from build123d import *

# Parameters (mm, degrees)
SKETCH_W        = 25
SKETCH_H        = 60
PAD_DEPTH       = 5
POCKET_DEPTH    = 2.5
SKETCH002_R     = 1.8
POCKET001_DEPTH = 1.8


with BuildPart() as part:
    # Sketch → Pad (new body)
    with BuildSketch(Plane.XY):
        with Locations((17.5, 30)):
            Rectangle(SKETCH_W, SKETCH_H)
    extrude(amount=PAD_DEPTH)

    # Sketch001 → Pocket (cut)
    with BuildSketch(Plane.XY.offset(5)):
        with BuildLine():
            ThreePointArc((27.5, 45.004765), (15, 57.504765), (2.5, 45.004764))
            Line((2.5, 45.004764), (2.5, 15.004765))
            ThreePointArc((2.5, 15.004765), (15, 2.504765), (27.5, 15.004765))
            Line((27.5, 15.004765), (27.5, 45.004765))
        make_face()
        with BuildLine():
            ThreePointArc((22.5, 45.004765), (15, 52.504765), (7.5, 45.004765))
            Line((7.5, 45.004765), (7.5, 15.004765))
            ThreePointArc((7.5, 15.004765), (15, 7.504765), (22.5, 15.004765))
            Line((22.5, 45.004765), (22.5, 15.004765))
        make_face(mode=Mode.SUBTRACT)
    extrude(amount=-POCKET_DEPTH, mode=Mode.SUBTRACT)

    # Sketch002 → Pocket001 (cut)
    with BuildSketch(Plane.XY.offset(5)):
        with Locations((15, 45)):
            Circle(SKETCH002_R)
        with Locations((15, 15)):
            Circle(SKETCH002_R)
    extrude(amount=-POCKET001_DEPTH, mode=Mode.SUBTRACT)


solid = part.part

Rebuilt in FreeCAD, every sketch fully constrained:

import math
import FreeCAD as App
import Part
import Sketcher
from FreeCAD import Vector

doc = App.newDocument("Part")
params = doc.addObject("Spreadsheet::Sheet", "Params")
for row, (alias, value) in enumerate([
    ("sketch1_width", "25 mm"),
    ("sketch1_height", "60 mm"),
    ("pad1_length", "5 mm"),
    ("sketch2_radius", "12.5 mm"),
    ("sketch2_radius2", "7.5 mm"),
    ("sketch2_height", "29.999999 mm"),
    ("pocket1_length", "2.5 mm"),
    ("sketch3_diameter", "3.6 mm"),
    ("pocket2_length", "1.8 mm"),
], start=1):
    params.set(f"A{row}", alias)
    params.set(f"B{row}", "=" + value)
    params.setAlias(f"B{row}", alias)

body = doc.addObject("PartDesign::Body", "Body")

sketch1 = body.newObject("Sketcher::SketchObject", "Sketch")
sketch1.AttachmentSupport = (doc.getObject("XY_Plane"), [""])
sketch1.MapMode = "FlatFace"
sketch1.addGeometry(Part.LineSegment(Vector(5, 60, 0), Vector(5, 0, 0)), False)
sketch1.addGeometry(Part.LineSegment(Vector(5, 0, 0), Vector(30, 0, 0)), False)
sketch1.addGeometry(Part.LineSegment(Vector(30, 0, 0), Vector(30, 60, 0)), False)
sketch1.addGeometry(Part.LineSegment(Vector(30, 60, 0), Vector(5, 60, 0)), False)
sketch1.addConstraint(Sketcher.Constraint("Coincident", 0, 2, 1, 1))
sketch1.addConstraint(Sketcher.Constraint("Coincident", 1, 2, 2, 1))
sketch1.addConstraint(Sketcher.Constraint("Coincident", 2, 2, 3, 1))
sketch1.addConstraint(Sketcher.Constraint("Coincident", 3, 2, 0, 1))
sketch1.addConstraint(Sketcher.Constraint("Vertical", 0))
sketch1.addConstraint(Sketcher.Constraint("Horizontal", 1))
sketch1.addConstraint(Sketcher.Constraint("Vertical", 2))
sketch1.addConstraint(Sketcher.Constraint("Horizontal", 3))
sketch1.addConstraint(Sketcher.Constraint("PointOnObject", 0, 2, -1))
sketch1.addConstraint(Sketcher.Constraint("DistanceX", 1, 1, 1, 2, 25.0))
sketch1.addConstraint(Sketcher.Constraint("DistanceY", 0, 2, 0, 1, 60.0))
sketch1.addConstraint(Sketcher.Constraint("DistanceX", -1, 1, 0, 2, 5.0))
sketch1.setExpression("Constraints[9]", "Params.sketch1_width")
sketch1.setExpression("Constraints[10]", "Params.sketch1_height")
pad1 = body.newObject("PartDesign::Pad", "Pad")
pad1.Profile = sketch1
pad1.setExpression("Length", "Params.pad1_length")

sketch2 = body.newObject("Sketcher::SketchObject", "Sketch001")
sketch2.AttachmentSupport = (doc.getObject("XY_Plane"), [""])
sketch2.MapMode = "FlatFace"
sketch2.AttachmentOffset = App.Placement(Vector(0, 0, 5), App.Rotation())
sketch2.addGeometry(Part.ArcOfCircle(Part.Circle(Vector(15, 45.004765, 0), Vector(0, 0, 1), 12.5), math.radians(0), math.radians(180.000005)), False)
sketch2.addGeometry(Part.LineSegment(Vector(2.5, 45.004764, 0), Vector(2.5, 15.004765, 0)), False)
sketch2.addGeometry(Part.ArcOfCircle(Part.Circle(Vector(15, 15.004765, 0), Vector(0, 0, 1), 12.5), math.radians(180), math.radians(360)), False)
sketch2.addGeometry(Part.LineSegment(Vector(27.5, 15.004765, 0), Vector(27.5, 45.004765, 0)), False)
sketch2.addGeometry(Part.ArcOfCircle(Part.Circle(Vector(15, 45.004765, 0), Vector(0, 0, 1), 7.5), math.radians(0), math.radians(180)), False)
sketch2.addGeometry(Part.LineSegment(Vector(22.5, 45.004765, 0), Vector(22.5, 15.004765, 0)), False)
sketch2.addGeometry(Part.ArcOfCircle(Part.Circle(Vector(15, 15.004765, 0), Vector(0, 0, 1), 7.5), math.radians(180), math.radians(360)), False)
sketch2.addGeometry(Part.LineSegment(Vector(7.5, 15.004765, 0), Vector(7.5, 45.004765, 0)), False)
sketch2.addConstraint(Sketcher.Constraint("Tangent", 0, 2, 1, 1))
sketch2.addConstraint(Sketcher.Constraint("Tangent", 1, 2, 2, 1))
sketch2.addConstraint(Sketcher.Constraint("Tangent", 2, 2, 3, 1))
sketch2.addConstraint(Sketcher.Constraint("Tangent", 3, 2, 0, 1))
sketch2.addConstraint(Sketcher.Constraint("Tangent", 4, 1, 5, 1))
sketch2.addConstraint(Sketcher.Constraint("Tangent", 5, 2, 6, 2))
sketch2.addConstraint(Sketcher.Constraint("Tangent", 6, 1, 7, 1))
sketch2.addConstraint(Sketcher.Constraint("Tangent", 7, 2, 4, 2))
sketch2.addConstraint(Sketcher.Constraint("Vertical", 1))
sketch2.addConstraint(Sketcher.Constraint("Vertical", 3))
sketch2.addConstraint(Sketcher.Constraint("Vertical", 5))
sketch2.addConstraint(Sketcher.Constraint("Vertical", 7))
sketch2.addConstraint(Sketcher.Constraint("Coincident", 4, 3, 0, 3))
sketch2.addConstraint(Sketcher.Constraint("Horizontal", 6, 3, 1, 2))
sketch2.addConstraint(Sketcher.Constraint("Radius", 0, 12.5))
sketch2.addConstraint(Sketcher.Constraint("Radius", 4, 7.5))
sketch2.addConstraint(Sketcher.Constraint("DistanceY", 1, 2, 1, 1, 29.999999))
sketch2.addConstraint(Sketcher.Constraint("DistanceX", -1, 1, 0, 3, 15.0))
sketch2.addConstraint(Sketcher.Constraint("DistanceY", -1, 1, 0, 3, 45.004765))
sketch2.setExpression("Constraints[14]", "Params.sketch2_radius")
sketch2.setExpression("Constraints[15]", "Params.sketch2_radius2")
sketch2.setExpression("Constraints[16]", "Params.sketch2_height")
pocket1 = body.newObject("PartDesign::Pocket", "Pocket")
pocket1.Profile = sketch2
pocket1.setExpression("Length", "Params.pocket1_length")

sketch3 = body.newObject("Sketcher::SketchObject", "Sketch002")
sketch3.AttachmentSupport = (doc.getObject("XY_Plane"), [""])
sketch3.MapMode = "FlatFace"
sketch3.AttachmentOffset = App.Placement(Vector(0, 0, 5), App.Rotation())
sketch3.addGeometry(Part.Circle(Vector(15, 45, 0), Vector(0, 0, 1), 1.8), False)
sketch3.addGeometry(Part.Circle(Vector(15, 15, 0), Vector(0, 0, 1), 1.8), False)
sketch3.addConstraint(Sketcher.Constraint("Equal", 0, 1))
sketch3.addConstraint(Sketcher.Constraint("Vertical", 0, 3, 1, 3))
sketch3.addConstraint(Sketcher.Constraint("Diameter", 0, 3.6))
sketch3.addConstraint(Sketcher.Constraint("DistanceX", -1, 1, 0, 3, 15.0))
sketch3.addConstraint(Sketcher.Constraint("DistanceY", -1, 1, 0, 3, 45.0))
sketch3.addConstraint(Sketcher.Constraint("DistanceY", -1, 1, 1, 3, 15.0))
sketch3.setExpression("Constraints[2]", "Params.sketch3_diameter")
pocket2 = body.newObject("PartDesign::Pocket", "Pocket001")
pocket2.Profile = sketch3
pocket2.setExpression("Length", "Params.pocket2_length")

doc.recompute()
